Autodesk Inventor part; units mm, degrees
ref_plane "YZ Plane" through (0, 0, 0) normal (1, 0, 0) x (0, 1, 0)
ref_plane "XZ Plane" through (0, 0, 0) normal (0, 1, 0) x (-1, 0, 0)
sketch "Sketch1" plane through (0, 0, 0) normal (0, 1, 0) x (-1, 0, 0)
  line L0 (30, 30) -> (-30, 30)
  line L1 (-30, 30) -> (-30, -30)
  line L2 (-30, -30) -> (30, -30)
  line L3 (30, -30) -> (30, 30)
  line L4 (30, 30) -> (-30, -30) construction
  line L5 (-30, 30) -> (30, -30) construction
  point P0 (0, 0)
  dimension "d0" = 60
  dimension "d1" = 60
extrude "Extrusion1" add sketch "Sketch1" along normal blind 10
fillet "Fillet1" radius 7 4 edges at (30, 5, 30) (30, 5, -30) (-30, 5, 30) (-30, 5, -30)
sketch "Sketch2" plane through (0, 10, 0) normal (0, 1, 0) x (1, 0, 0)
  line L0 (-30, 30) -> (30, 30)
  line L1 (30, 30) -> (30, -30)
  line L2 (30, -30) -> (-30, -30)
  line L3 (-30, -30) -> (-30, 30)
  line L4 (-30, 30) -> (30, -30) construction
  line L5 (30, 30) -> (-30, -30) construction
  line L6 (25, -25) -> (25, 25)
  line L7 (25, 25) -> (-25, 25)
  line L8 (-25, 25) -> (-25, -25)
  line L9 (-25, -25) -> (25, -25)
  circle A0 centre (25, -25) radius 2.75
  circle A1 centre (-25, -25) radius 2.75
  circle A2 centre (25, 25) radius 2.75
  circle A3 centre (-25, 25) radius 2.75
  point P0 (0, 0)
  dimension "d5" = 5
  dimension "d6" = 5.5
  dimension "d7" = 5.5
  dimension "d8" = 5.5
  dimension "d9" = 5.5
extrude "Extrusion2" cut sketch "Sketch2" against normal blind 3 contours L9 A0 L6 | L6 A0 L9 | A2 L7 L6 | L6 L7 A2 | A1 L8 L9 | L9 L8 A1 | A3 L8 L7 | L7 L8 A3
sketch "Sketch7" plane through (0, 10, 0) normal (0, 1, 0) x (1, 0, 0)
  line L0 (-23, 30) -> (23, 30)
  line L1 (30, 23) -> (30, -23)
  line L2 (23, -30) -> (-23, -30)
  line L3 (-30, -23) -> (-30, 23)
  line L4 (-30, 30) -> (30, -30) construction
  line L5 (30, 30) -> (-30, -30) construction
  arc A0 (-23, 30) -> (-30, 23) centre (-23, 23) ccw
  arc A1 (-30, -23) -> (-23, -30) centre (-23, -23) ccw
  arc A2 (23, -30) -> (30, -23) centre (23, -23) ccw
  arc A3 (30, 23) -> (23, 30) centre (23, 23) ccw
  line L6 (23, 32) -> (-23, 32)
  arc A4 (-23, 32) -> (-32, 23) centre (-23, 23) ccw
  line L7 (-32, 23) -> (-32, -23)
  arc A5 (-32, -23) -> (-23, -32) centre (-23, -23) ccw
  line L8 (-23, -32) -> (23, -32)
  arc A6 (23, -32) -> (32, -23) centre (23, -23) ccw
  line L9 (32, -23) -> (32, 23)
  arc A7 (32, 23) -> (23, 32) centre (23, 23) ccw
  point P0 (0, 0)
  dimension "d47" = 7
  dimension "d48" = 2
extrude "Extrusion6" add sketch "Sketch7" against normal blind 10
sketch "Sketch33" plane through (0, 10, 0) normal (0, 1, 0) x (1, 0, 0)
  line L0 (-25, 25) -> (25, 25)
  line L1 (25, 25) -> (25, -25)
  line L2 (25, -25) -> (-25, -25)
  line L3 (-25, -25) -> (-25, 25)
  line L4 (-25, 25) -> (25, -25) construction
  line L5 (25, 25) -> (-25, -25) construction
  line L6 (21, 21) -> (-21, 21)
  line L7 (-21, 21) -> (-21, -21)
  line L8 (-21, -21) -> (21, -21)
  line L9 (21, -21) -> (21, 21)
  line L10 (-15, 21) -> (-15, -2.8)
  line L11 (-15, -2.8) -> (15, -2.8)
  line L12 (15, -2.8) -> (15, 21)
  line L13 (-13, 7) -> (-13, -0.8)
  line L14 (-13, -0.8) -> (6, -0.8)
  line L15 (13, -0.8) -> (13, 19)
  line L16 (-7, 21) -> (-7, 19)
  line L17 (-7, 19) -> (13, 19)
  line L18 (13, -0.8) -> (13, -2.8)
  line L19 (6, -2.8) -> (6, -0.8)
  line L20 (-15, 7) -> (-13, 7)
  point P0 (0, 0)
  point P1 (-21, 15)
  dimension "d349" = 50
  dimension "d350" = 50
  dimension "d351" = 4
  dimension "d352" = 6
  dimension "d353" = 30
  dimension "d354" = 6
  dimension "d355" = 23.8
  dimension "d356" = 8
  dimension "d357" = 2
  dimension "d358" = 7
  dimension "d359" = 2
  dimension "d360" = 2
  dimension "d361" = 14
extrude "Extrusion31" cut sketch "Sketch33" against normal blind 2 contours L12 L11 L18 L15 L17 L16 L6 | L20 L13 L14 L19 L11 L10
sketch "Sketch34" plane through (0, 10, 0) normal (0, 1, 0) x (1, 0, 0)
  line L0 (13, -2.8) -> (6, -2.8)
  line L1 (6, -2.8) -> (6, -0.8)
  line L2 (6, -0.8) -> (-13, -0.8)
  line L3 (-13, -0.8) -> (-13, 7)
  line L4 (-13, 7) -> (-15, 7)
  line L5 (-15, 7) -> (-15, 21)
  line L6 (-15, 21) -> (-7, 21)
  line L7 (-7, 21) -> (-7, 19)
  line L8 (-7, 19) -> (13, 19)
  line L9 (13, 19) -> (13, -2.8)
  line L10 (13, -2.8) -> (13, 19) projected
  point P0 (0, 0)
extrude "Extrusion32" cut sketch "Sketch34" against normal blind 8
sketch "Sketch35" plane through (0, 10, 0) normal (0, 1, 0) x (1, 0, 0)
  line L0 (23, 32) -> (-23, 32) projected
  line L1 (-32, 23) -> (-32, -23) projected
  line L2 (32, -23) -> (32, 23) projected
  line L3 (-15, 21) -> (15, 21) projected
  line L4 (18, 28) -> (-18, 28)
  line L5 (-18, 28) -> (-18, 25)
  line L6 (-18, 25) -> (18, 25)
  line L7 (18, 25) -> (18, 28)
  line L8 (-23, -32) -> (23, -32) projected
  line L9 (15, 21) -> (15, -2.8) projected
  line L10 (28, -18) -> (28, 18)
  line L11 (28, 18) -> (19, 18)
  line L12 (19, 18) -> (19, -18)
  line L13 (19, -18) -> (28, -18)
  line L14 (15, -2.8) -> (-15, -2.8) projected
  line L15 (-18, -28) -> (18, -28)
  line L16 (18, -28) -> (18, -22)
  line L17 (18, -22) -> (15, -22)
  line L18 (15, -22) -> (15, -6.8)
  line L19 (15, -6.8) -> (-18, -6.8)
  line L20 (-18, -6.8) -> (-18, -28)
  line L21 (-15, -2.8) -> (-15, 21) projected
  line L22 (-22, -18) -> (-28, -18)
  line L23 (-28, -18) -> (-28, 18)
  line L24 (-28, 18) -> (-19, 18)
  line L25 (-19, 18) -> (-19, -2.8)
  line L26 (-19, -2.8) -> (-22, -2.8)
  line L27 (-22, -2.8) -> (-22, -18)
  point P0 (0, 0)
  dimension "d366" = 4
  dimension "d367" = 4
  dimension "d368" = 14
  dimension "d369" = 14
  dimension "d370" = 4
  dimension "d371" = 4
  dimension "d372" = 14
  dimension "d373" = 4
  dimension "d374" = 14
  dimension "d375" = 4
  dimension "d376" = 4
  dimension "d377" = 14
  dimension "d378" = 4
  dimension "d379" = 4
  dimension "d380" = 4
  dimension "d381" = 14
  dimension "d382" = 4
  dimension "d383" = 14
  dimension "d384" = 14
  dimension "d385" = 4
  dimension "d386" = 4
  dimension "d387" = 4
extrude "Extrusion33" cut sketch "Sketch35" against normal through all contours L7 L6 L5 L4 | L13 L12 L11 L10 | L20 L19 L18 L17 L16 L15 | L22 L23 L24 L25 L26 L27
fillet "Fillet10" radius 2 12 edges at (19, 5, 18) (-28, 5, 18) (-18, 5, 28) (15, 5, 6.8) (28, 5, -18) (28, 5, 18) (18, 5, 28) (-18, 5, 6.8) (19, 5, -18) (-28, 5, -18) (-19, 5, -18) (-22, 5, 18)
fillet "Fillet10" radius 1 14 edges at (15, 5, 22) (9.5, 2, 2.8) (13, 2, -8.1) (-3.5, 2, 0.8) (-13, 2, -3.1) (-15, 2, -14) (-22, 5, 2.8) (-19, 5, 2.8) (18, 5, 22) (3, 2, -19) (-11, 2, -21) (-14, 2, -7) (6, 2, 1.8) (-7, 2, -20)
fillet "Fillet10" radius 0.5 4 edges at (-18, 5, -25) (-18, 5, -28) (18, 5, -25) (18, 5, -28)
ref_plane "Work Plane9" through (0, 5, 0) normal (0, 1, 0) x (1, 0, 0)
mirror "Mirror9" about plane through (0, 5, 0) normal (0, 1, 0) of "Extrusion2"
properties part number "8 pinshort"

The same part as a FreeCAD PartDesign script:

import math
import FreeCAD as App
import Part
import Sketcher
from FreeCAD import Vector
Q = App.Units.Quantity


def edges_at(feature, points):
    """Names of the edges that pass closest to the given points."""
    edges = feature.Shape.Edges
    near = lambda p: min(range(len(edges)), key=lambda i: edges[i].distToShape(Part.Vertex(*p))[0])
    return sorted({f"Edge{near(p) + 1}" for p in points})

doc = App.newDocument("Part")
body = doc.addObject("PartDesign::Body", "Body")

# Sketch on XZ plane
sketch1 = body.newObject("Sketcher::SketchObject", "Sketch")
sketch1.AttachmentSupport = (doc.getObject("XZ_Plane"), [""])
sketch1.MapMode = "FlatFace"
sketch1.addGeometry([
    Part.LineSegment(Vector(-30, -30, 0), Vector(-30, 30, 0)),
    Part.LineSegment(Vector(-30, 30, 0), Vector(30, 30, 0)),
    Part.LineSegment(Vector(30, 30, 0), Vector(30, -30, 0)),
    Part.LineSegment(Vector(30, -30, 0), Vector(-30, -30, 0)),
], False)
sketch1.addConstraint([
    Sketcher.Constraint("Coincident", 0, 2, 1, 1),
    Sketcher.Constraint("Coincident", 1, 2, 2, 1),
    Sketcher.Constraint("Coincident", 2, 2, 3, 1),
    Sketcher.Constraint("Coincident", 3, 2, 0, 1),
    Sketcher.Constraint("Vertical", 0),
    Sketcher.Constraint("Horizontal", 1),
    Sketcher.Constraint("Vertical", 2),
    Sketcher.Constraint("Horizontal", 3),
    Sketcher.Constraint("Symmetric", 0, 2, 2, 2, -1, 1),
    Sketcher.Constraint("Equal", 3, 0),
    Sketcher.Constraint("DistanceX", 1, 1, 1, 2, Q("60 mm")),
])
pad1 = body.newObject("PartDesign::Pad", "Pad")
pad1.Profile = sketch1
pad1.Length = 10
pad1.Reversed = True
doc.recompute()

fillet = body.newObject("PartDesign::Fillet", "Fillet")
fillet.Base = (pad1, edges_at(pad1, [
    (30, 5, 30),
    (30, 5, -30),
    (-30, 5, 30),
    (-30, 5, -30),
]))
fillet.Radius = 7

# Sketch on XZ plane
sketch2 = body.newObject("Sketcher::SketchObject", "Sketch001")
sketch2.AttachmentSupport = (doc.getObject("XZ_Plane"), [""])
sketch2.MapMode = "FlatFace"
sketch2.AttachmentOffset = App.Placement(Vector(0, 0, -10), App.Rotation())
sketch2.addGeometry([
    Part.Circle(Vector(25, 25, 0), Vector(0, 0, 1), 2.75),
    Part.Circle(Vector(25, -25, 0), Vector(0, 0, 1), 2.75),
    Part.Circle(Vector(-25, 25, 0), Vector(0, 0, 1), 2.75),
    Part.Circle(Vector(-25, -25, 0), Vector(0, 0, 1), 2.75),
], False)
sketch2.addConstraint([
    Sketcher.Constraint("Equal", 0, 1),
    Sketcher.Constraint("Equal", 1, 2),
    Sketcher.Constraint("Equal", 2, 3),
    Sketcher.Constraint("Symmetric", 1, 3, 2, 3, -1, 1),
    Sketcher.Constraint("Symmetric", 0, 3, 3, 3, -1, 1),
    Sketcher.Constraint("Symmetric", 0, 3, 2, 3, -2),
    Sketcher.Constraint("Diameter", 0, Q("5.5 mm")),
    Sketcher.Constraint("DistanceX", -1, 1, 0, 3, Q("25 mm")),
    Sketcher.Constraint("DistanceY", -1, 1, 0, 3, Q("25 mm")),
])
pocket1 = body.newObject("PartDesign::Pocket", "Pocket")
pocket1.Profile = sketch2
pocket1.Length = 3
pocket1.Reversed = True

# Sketch on XZ plane
sketch3 = body.newObject("Sketcher::SketchObject", "Sketch002")
sketch3.AttachmentSupport = (doc.getObject("XZ_Plane"), [""])
sketch3.MapMode = "FlatFace"
sketch3.AttachmentOffset = App.Placement(Vector(0, 0, -10), App.Rotation())
sketch3.addGeometry([
    Part.ArcOfCircle(Part.Circle(Vector(23, -23, 0), Vector(0, 0, 1), 9), math.radians(-90), math.radians(0)),  # 0
    Part.LineSegment(Vector(23, -32, 0), Vector(-23, -32, 0)),  # 1
    Part.ArcOfCircle(Part.Circle(Vector(-23, -23, 0), Vector(0, 0, 1), 9), math.radians(180), math.radians(270)),  # 2
    Part.LineSegment(Vector(-32, -23, 0), Vector(-32, 23, 0)),  # 3
    Part.ArcOfCircle(Part.Circle(Vector(-23, 23, 0), Vector(0, 0, 1), 9), math.radians(90), math.radians(180)),  # 4
    Part.LineSegment(Vector(-23, 32, 0), Vector(23, 32, 0)),  # 5
    Part.ArcOfCircle(Part.Circle(Vector(23, 23, 0), Vector(0, 0, 1), 9), math.radians(0), math.radians(90)),  # 6
    Part.LineSegment(Vector(32, 23, 0), Vector(32, -23, 0)),  # 7
    Part.ArcOfCircle(Part.Circle(Vector(-23, -23, 0), Vector(0, 0, 1), 7), math.radians(180), math.radians(270)),  # 8
    Part.LineSegment(Vector(-23, -30, 0), Vector(23, -30, 0)),  # 9
    Part.ArcOfCircle(Part.Circle(Vector(23, -23, 0), Vector(0, 0, 1), 7), math.radians(-90), math.radians(0)),  # 10
    Part.LineSegment(Vector(30, -23, 0), Vector(30, 23, 0)),  # 11
    Part.ArcOfCircle(Part.Circle(Vector(23, 23, 0), Vector(0, 0, 1), 7), math.radians(0), math.radians(90)),  # 12
    Part.LineSegment(Vector(23, 30, 0), Vector(-23, 30, 0)),  # 13
    Part.ArcOfCircle(Part.Circle(Vector(-23, 23, 0), Vector(0, 0, 1), 7), math.radians(90), math.radians(180)),  # 14
    Part.LineSegment(Vector(-30, 23, 0), Vector(-30, -23, 0)),  # 15
], False)
sketch3.addConstraint([
    Sketcher.Constraint("Tangent", 0, 1, 1, 1),
    Sketcher.Constraint("Tangent", 1, 2, 2, 2),
    Sketcher.Constraint("Tangent", 2, 1, 3, 1),
    Sketcher.Constraint("Tangent", 3, 2, 4, 2),
    Sketcher.Constraint("Tangent", 4, 1, 5, 1),
    Sketcher.Constraint("Tangent", 5, 2, 6, 2),
    Sketcher.Constraint("Tangent", 6, 1, 7, 1),
    Sketcher.Constraint("Tangent", 7, 2, 0, 2),
    Sketcher.Constraint("Tangent", 8, 2, 9, 1),
    Sketcher.Constraint("Tangent", 9, 2, 10, 1),
    Sketcher.Constraint("Tangent", 10, 2, 11, 1),
    Sketcher.Constraint("Tangent", 11, 2, 12, 1),
    Sketcher.Constraint("Tangent", 12, 2, 13, 1),
    Sketcher.Constraint("Tangent", 13, 2, 14, 1),
    Sketcher.Constraint("Tangent", 14, 2, 15, 1),
    Sketcher.Constraint("Tangent", 15, 2, 8, 1),
    Sketcher.Constraint("Horizontal", 1),
    Sketcher.Constraint("Vertical", 3),
    Sketcher.Constraint("Horizontal", 5),
    Sketcher.Constraint("Vertical", 7),
    Sketcher.Constraint("Horizontal", 9),
    Sketcher.Constraint("Vertical", 11),
    Sketcher.Constraint("Horizontal", 13),
    Sketcher.Constraint("Vertical", 15),
    Sketcher.Constraint("Coincident", 8, 3, 2, 3),
    Sketcher.Constraint("Coincident", 10, 3, 0, 3),
    Sketcher.Constraint("Coincident", 12, 3, 6, 3),
    Sketcher.Constraint("Equal", 0, 2),
    Sketcher.Constraint("Equal", 2, 4),
    Sketcher.Constraint("Equal", 4, 6),
    Sketcher.Constraint("Equal", 12, 14),
    Sketcher.Constraint("Symmetric", 0, 3, 4, 3, -1, 1),
    Sketcher.Constraint("Equal", 13, 3),
    Sketcher.Constraint("Radius", 8, Q("7 mm")),
    Sketcher.Constraint("Radius", 0, Q("9 mm")),
    Sketcher.Constraint("DistanceX", 1, 2, 1, 1, Q("46 mm")),
])
pad2 = body.newObject("PartDesign::Pad", "Pad001")
pad2.Profile = sketch3
pad2.Length = 10

# Sketch on XZ plane
sketch4 = body.newObject("Sketcher::SketchObject", "Sketch003")
sketch4.AttachmentSupport = (doc.getObject("XZ_Plane"), [""])
sketch4.MapMode = "FlatFace"
sketch4.AttachmentOffset = App.Placement(Vector(0, 0, -10), App.Rotation())
sketch4.addGeometry([
    Part.LineSegment(Vector(15, 2.8, 0), Vector(15, -21, 0)),  # 0
    Part.LineSegment(Vector(15, -21, 0), Vector(-7, -21, 0)),  # 1
    Part.LineSegment(Vector(-7, -21, 0), Vector(-7, -19, 0)),  # 2
    Part.LineSegment(Vector(-7, -19, 0), Vector(13, -19, 0)),  # 3
    Part.LineSegment(Vector(13, -19, 0), Vector(13, 2.8, 0)),  # 4
    Part.LineSegment(Vector(13, 2.8, 0), Vector(15, 2.8, 0)),  # 5
    Part.LineSegment(Vector(-13, -7, 0), Vector(-15, -7, 0)),  # 6
    Part.LineSegment(Vector(-15, -7, 0), Vector(-15, 2.8, 0)),  # 7
    Part.LineSegment(Vector(-15, 2.8, 0), Vector(6, 2.8, 0)),  # 8
    Part.LineSegment(Vector(6, 2.8, 0), Vector(6, 0.8, 0)),  # 9
    Part.LineSegment(Vector(6, 0.8, 0), Vector(-13, 0.8, 0)),  # 10
    Part.LineSegment(Vector(-13, 0.8, 0), Vector(-13, -7, 0)),  # 11
], False)
sketch4.addConstraint([
    Sketcher.Constraint("Coincident", 0, 2, 1, 1),
    Sketcher.Constraint("Coincident", 1, 2, 2, 1),
    Sketcher.Constraint("Coincident", 2, 2, 3, 1),
    Sketcher.Constraint("Coincident", 3, 2, 4, 1),
    Sketcher.Constraint("Coincident", 4, 2, 5, 1),
    Sketcher.Constraint("Coincident", 5, 2, 0, 1),
    Sketcher.Constraint("Coincident", 6, 2, 7, 1),
    Sketcher.Constraint("Coincident", 7, 2, 8, 1),
    Sketcher.Constraint("Coincident", 8, 2, 9, 1),
    Sketcher.Constraint("Coincident", 9, 2, 10, 1),
    Sketcher.Constraint("Coincident", 10, 2, 11, 1),
    Sketcher.Constraint("Coincident", 11, 2, 6, 1),
    Sketcher.Constraint("Vertical", 0),
    Sketcher.Constraint("Horizontal", 1),
    Sketcher.Constraint("Vertical", 2),
    Sketcher.Constraint("Horizontal", 3),
    Sketcher.Constraint("Vertical", 4),
    Sketcher.Constraint("Horizontal", 5),
    Sketcher.Constraint("Horizontal", 6),
    Sketcher.Constraint("Vertical", 7),
    Sketcher.Constraint("Horizontal", 8),
    Sketcher.Constraint("Vertical", 9),
    Sketcher.Constraint("Horizontal", 10),
    Sketcher.Constraint("Vertical", 11),
    Sketcher.Constraint("Symmetric", 5, 2, 7, 2, -2),
    Sketcher.Constraint("Equal", 5, 6),
    Sketcher.Constraint("Equal", 6, 2),
    Sketcher.Constraint("Equal", 2, 9),
    Sketcher.Constraint("DistanceX", 5, 1, 5, 2, Q("2 mm")),
    Sketcher.Constraint("DistanceY", 0, 2, 0, 1, Q("23.8 mm")),
    Sketcher.Constraint("DistanceX", 1, 2, -1, 1, Q("7 mm")),
    Sketcher.Constraint("DistanceY", 6, 2, -1, 1, Q("7 mm")),
    Sketcher.Constraint("DistanceX", -1, 1, 8, 2, Q("6 mm")),
    Sketcher.Constraint("DistanceX", 6, 2, 2, 2, Q("8 mm")),
    Sketcher.Constraint("DistanceY", 1, 2, 6, 2, Q("14 mm")),
])
pocket2 = body.newObject("PartDesign::Pocket", "Pocket001")
pocket2.Profile = sketch4
pocket2.Length = 2
pocket2.Reversed = True

# Sketch on XZ plane
sketch5 = body.newObject("Sketcher::SketchObject", "Sketch004")
sketch5.AttachmentSupport = (doc.getObject("XZ_Plane"), [""])
sketch5.MapMode = "FlatFace"
sketch5.AttachmentOffset = App.Placement(Vector(0, 0, -10), App.Rotation())
sketch5.addGeometry([
    Part.LineSegment(Vector(6, 2.8, 0), Vector(13, 2.8, 0)),  # 0
    Part.LineSegment(Vector(13, 2.8, 0), Vector(13, -19, 0)),  # 1
    Part.LineSegment(Vector(13, -19, 0), Vector(-7, -19, 0)),  # 2
    Part.LineSegment(Vector(-7, -19, 0), Vector(-7, -21, 0)),  # 3
    Part.LineSegment(Vector(-7, -21, 0), Vector(-15, -21, 0)),  # 4
    Part.LineSegment(Vector(-15, -21, 0), Vector(-15, -7, 0)),  # 5
    Part.LineSegment(Vector(-15, -7, 0), Vector(-13, -7, 0)),  # 6
    Part.LineSegment(Vector(-13, -7, 0), Vector(-13, 0.8, 0)),  # 7
    Part.LineSegment(Vector(-13, 0.8, 0), Vector(6, 0.8, 0)),  # 8
    Part.LineSegment(Vector(6, 0.8, 0), Vector(6, 2.8, 0)),  # 9
], False)
sketch5.addConstraint([
    Sketcher.Constraint("Coincident", 0, 2, 1, 1),
    Sketcher.Constraint("Coincident", 1, 2, 2, 1),
    Sketcher.Constraint("Coincident", 2, 2, 3, 1),
    Sketcher.Constraint("Coincident", 3, 2, 4, 1),
    Sketcher.Constraint("Coincident", 4, 2, 5, 1),
    Sketcher.Constraint("Coincident", 5, 2, 6, 1),
    Sketcher.Constraint("Coincident", 6, 2, 7, 1),
    Sketcher.Constraint("Coincident", 7, 2, 8, 1),
    Sketcher.Constraint("Coincident", 8, 2, 9, 1),
    Sketcher.Constraint("Coincident", 9, 2, 0, 1),
    Sketcher.Constraint("Horizontal", 0),
    Sketcher.Constraint("Vertical", 1),
    Sketcher.Constraint("Horizontal", 2),
    Sketcher.Constraint("Vertical", 3),
    Sketcher.Constraint("Horizontal", 4),
    Sketcher.Constraint("Vertical", 5),
    Sketcher.Constraint("Horizontal", 6),
    Sketcher.Constraint("Vertical", 7),
    Sketcher.Constraint("Horizontal", 8),
    Sketcher.Constraint("Vertical", 9),
    Sketcher.Constraint("Equal", 6, 3),
    Sketcher.Constraint("Equal", 3, 9),
    Sketcher.Constraint("DistanceX", 0, 1, 0, 2, Q("7 mm")),
    Sketcher.Constraint("DistanceX", 2, 2, 2, 1, Q("20 mm")),
    Sketcher.Constraint("DistanceX", 4, 2, 4, 1, Q("8 mm")),
    Sketcher.Constraint("DistanceX", 6, 1, 6, 2, Q("2 mm")),
    Sketcher.Constraint("DistanceY", 5, 1, 5, 2, Q("14 mm")),
    Sketcher.Constraint("DistanceY", 1, 2, 1, 1, Q("21.8 mm")),
    Sketcher.Constraint("DistanceX", -1, 1, 0, 2, Q("13 mm")),
    Sketcher.Constraint("DistanceY", 1, 2, -1, 1, Q("19 mm")),
])
pocket3 = body.newObject("PartDesign::Pocket", "Pocket002")
pocket3.Profile = sketch5
pocket3.Length = 8
pocket3.Reversed = True

# Sketch on XZ plane
sketch6 = body.newObject("Sketcher::SketchObject", "Sketch005")
sketch6.AttachmentSupport = (doc.getObject("XZ_Plane"), [""])
sketch6.MapMode = "FlatFace"
sketch6.AttachmentOffset = App.Placement(Vector(0, 0, -10), App.Rotation())
sketch6.addGeometry([
    Part.LineSegment(Vector(18, -25, 0), Vector(18, -28, 0)),  # 0
    Part.LineSegment(Vector(18, -28, 0), Vector(-18, -28, 0)),  # 1
    Part.LineSegment(Vector(-18, -28, 0), Vector(-18, -25, 0)),  # 2
    Part.LineSegment(Vector(-18, -25, 0), Vector(18, -25, 0)),  # 3
    Part.LineSegment(Vector(19, 18, 0), Vector(28, 18, 0)),  # 4
    Part.LineSegment(Vector(28, 18, 0), Vector(28, -18, 0)),  # 5
    Part.LineSegment(Vector(28, -18, 0), Vector(19, -18, 0)),  # 6
    Part.LineSegment(Vector(19, -18, 0), Vector(19, 18, 0)),  # 7
    Part.LineSegment(Vector(-18, 6.8, 0), Vector(-18, 28, 0)),  # 8
    Part.LineSegment(Vector(-18, 28, 0), Vector(18, 28, 0)),  # 9
    Part.LineSegment(Vector(18, 28, 0), Vector(18, 22, 0)),  # 10
    Part.LineSegment(Vector(18, 22, 0), Vector(15, 22, 0)),  # 11
    Part.LineSegment(Vector(15, 22, 0), Vector(15, 6.8, 0)),  # 12
    Part.LineSegment(Vector(15, 6.8, 0), Vector(-18, 6.8, 0)),  # 13
    Part.LineSegment(Vector(-28, 18, 0), Vector(-22, 18, 0)),  # 14
    Part.LineSegment(Vector(-22, 18, 0), Vector(-22, 2.8, 0)),  # 15
    Part.LineSegment(Vector(-22, 2.8, 0), Vector(-19, 2.8, 0)),  # 16
    Part.LineSegment(Vector(-19, 2.8, 0), Vector(-19, -18, 0)),  # 17
    Part.LineSegment(Vector(-19, -18, 0), Vector(-28, -18, 0)),  # 18
    Part.LineSegment(Vector(-28, -18, 0), Vector(-28, 18, 0)),  # 19
], False)
sketch6.addConstraint([
    Sketcher.Constraint("Coincident", 0, 2, 1, 1),
    Sketcher.Constraint("Coincident", 1, 2, 2, 1),
    Sketcher.Constraint("Coincident", 2, 2, 3, 1),
    Sketcher.Constraint("Coincident", 3, 2, 0, 1),
    Sketcher.Constraint("Coincident", 4, 2, 5, 1),
    Sketcher.Constraint("Coincident", 5, 2, 6, 1),
    Sketcher.Constraint("Coincident", 6, 2, 7, 1),
    Sketcher.Constraint("Coincident", 7, 2, 4, 1),
    Sketcher.Constraint("Coincident", 8, 2, 9, 1),
    Sketcher.Constraint("Coincident", 9, 2, 10, 1),
    Sketcher.Constraint("Coincident", 10, 2, 11, 1),
    Sketcher.Constraint("Coincident", 11, 2, 12, 1),
    Sketcher.Constraint("Coincident", 12, 2, 13, 1),
    Sketcher.Constraint("Coincident", 13, 2, 8, 1),
    Sketcher.Constraint("Coincident", 14, 2, 15, 1),
    Sketcher.Constraint("Coincident", 15, 2, 16, 1),
    Sketcher.Constraint("Coincident", 16, 2, 17, 1),
    Sketcher.Constraint("Coincident", 17, 2, 18, 1),
    Sketcher.Constraint("Coincident", 18, 2, 19, 1),
    Sketcher.Constraint("Coincident", 19, 2, 14, 1),
    Sketcher.Constraint("Vertical", 0),
    Sketcher.Constraint("Horizontal", 1),
    Sketcher.Constraint("Vertical", 2),
    Sketcher.Constraint("Horizontal", 3),
    Sketcher.Constraint("Horizontal", 4),
    Sketcher.Constraint("Vertical", 5),
    Sketcher.Constraint("Horizontal", 6),
    Sketcher.Constraint("Vertical", 7),
    Sketcher.Constraint("Vertical", 8),
    Sketcher.Constraint("Horizontal", 9),
    Sketcher.Constraint("Vertical", 10),
    Sketcher.Constraint("Horizontal", 11),
    Sketcher.Constraint("Vertical", 12),
    Sketcher.Constraint("Horizontal", 13),
    Sketcher.Constraint("Horizontal", 14),
    Sketcher.Constraint("Vertical", 15),
    Sketcher.Constraint("Horizontal", 16),
    Sketcher.Constraint("Vertical", 17),
    Sketcher.Constraint("Horizontal", 18),
    Sketcher.Constraint("Vertical", 19),
    Sketcher.Constraint("Symmetric", 0, 2, 8, 2, -1, 1),
    Sketcher.Constraint("Symmetric", 7, 2, 17, 2, -1, 1),
    Sketcher.Constraint("Symmetric", 5, 2, 19, 2, -1, 1),
    Sketcher.Constraint("Horizontal", 7, 2, 14, 2),
    Sketcher.Constraint("Vertical", 2, 2, 8, 2),
    Sketcher.Constraint("Vertical", 3, 2, 9, 2),
    Sketcher.Constraint("Equal", 11, 16),
    Sketcher.Constraint("Equal", 16, 0),
    Sketcher.Constraint("Equal", 9, 5),
    Sketcher.Constraint("Equal", 14, 10),
    Sketcher.Constraint("Equal", 12, 15),
    Sketcher.Constraint("DistanceY", 7, 2, 10, 2, Q("4 mm")),
    Sketcher.Constraint("DistanceX", 11, 2, 7, 2, Q("4 mm")),
    Sketcher.Constraint("DistanceX", 1, 2, 1, 1, Q("36 mm")),
    Sketcher.Constraint("DistanceX", 4, 1, 4, 2, Q("9 mm")),
    Sketcher.Constraint("DistanceX", 11, 2, 11, 1, Q("3 mm")),
    Sketcher.Constraint("DistanceY", 8, 1, 8, 2, Q("21.2 mm")),
])
pocket4 = body.newObject("PartDesign::Pocket", "Pocket003")
pocket4.Profile = sketch6
pocket4.Type = "ThroughAll"
pocket4.Reversed = True
doc.recompute()

fillet2 = body.newObject("PartDesign::Fillet", "Fillet001")
fillet2.Base = (pocket4, edges_at(pocket4, [
    (19, 5, 18),
    (-28, 5, 18),
    (-18, 5, 28),
    (15, 5, 6.8),
    (28, 5, -18),
    (28, 5, 18),
    (18, 5, 28),
    (-18, 5, 6.8),
    (19, 5, -18),
    (-28, 5, -18),
    (-19, 5, -18),
    (-22, 5, 18),
]))
fillet2.Radius = 2
doc.recompute()

fillet3 = body.newObject("PartDesign::Fillet", "Fillet002")
fillet3.Base = (fillet2, edges_at(fillet2, [
    (15, 5, 22),
    (9.5, 2, 2.8),
    (13, 2, -8.1),
    (-3.5, 2, 0.8),
    (-13, 2, -3.1),
    (-15, 2, -14),
    (-22, 5, 2.8),
    (-19, 5, 2.8),
    (18, 5, 22),
    (3, 2, -19),
    (-11, 2, -21),
    (-14, 2, -7),
    (6, 2, 1.8),
    (-7, 2, -20),
]))
fillet3.Radius = 1
doc.recompute()

fillet4 = body.newObject("PartDesign::Fillet", "Fillet003")
fillet4.Base = (fillet3, edges_at(fillet3, [
    (-18, 5, -25),
    (-18, 5, -28),
    (18, 5, -25),
    (18, 5, -28),
]))
fillet4.Radius = 0.5
doc.recompute()

datumplane = body.newObject("PartDesign::Plane", "DatumPlane")
datumplane.AttachmentSupport = (doc.getObject("XZ_Plane"), [""])
datumplane.MapMode = "FlatFace"
datumplane.AttachmentOffset = App.Placement(Vector(0, 0, -5), App.Rotation())
mirrored = body.newObject("PartDesign::Mirrored", "Mirrored")
mirrored.Originals = [pocket1]
mirrored.MirrorPlane = (datumplane, [""])
body.Tip = mirrored

doc.recompute()
